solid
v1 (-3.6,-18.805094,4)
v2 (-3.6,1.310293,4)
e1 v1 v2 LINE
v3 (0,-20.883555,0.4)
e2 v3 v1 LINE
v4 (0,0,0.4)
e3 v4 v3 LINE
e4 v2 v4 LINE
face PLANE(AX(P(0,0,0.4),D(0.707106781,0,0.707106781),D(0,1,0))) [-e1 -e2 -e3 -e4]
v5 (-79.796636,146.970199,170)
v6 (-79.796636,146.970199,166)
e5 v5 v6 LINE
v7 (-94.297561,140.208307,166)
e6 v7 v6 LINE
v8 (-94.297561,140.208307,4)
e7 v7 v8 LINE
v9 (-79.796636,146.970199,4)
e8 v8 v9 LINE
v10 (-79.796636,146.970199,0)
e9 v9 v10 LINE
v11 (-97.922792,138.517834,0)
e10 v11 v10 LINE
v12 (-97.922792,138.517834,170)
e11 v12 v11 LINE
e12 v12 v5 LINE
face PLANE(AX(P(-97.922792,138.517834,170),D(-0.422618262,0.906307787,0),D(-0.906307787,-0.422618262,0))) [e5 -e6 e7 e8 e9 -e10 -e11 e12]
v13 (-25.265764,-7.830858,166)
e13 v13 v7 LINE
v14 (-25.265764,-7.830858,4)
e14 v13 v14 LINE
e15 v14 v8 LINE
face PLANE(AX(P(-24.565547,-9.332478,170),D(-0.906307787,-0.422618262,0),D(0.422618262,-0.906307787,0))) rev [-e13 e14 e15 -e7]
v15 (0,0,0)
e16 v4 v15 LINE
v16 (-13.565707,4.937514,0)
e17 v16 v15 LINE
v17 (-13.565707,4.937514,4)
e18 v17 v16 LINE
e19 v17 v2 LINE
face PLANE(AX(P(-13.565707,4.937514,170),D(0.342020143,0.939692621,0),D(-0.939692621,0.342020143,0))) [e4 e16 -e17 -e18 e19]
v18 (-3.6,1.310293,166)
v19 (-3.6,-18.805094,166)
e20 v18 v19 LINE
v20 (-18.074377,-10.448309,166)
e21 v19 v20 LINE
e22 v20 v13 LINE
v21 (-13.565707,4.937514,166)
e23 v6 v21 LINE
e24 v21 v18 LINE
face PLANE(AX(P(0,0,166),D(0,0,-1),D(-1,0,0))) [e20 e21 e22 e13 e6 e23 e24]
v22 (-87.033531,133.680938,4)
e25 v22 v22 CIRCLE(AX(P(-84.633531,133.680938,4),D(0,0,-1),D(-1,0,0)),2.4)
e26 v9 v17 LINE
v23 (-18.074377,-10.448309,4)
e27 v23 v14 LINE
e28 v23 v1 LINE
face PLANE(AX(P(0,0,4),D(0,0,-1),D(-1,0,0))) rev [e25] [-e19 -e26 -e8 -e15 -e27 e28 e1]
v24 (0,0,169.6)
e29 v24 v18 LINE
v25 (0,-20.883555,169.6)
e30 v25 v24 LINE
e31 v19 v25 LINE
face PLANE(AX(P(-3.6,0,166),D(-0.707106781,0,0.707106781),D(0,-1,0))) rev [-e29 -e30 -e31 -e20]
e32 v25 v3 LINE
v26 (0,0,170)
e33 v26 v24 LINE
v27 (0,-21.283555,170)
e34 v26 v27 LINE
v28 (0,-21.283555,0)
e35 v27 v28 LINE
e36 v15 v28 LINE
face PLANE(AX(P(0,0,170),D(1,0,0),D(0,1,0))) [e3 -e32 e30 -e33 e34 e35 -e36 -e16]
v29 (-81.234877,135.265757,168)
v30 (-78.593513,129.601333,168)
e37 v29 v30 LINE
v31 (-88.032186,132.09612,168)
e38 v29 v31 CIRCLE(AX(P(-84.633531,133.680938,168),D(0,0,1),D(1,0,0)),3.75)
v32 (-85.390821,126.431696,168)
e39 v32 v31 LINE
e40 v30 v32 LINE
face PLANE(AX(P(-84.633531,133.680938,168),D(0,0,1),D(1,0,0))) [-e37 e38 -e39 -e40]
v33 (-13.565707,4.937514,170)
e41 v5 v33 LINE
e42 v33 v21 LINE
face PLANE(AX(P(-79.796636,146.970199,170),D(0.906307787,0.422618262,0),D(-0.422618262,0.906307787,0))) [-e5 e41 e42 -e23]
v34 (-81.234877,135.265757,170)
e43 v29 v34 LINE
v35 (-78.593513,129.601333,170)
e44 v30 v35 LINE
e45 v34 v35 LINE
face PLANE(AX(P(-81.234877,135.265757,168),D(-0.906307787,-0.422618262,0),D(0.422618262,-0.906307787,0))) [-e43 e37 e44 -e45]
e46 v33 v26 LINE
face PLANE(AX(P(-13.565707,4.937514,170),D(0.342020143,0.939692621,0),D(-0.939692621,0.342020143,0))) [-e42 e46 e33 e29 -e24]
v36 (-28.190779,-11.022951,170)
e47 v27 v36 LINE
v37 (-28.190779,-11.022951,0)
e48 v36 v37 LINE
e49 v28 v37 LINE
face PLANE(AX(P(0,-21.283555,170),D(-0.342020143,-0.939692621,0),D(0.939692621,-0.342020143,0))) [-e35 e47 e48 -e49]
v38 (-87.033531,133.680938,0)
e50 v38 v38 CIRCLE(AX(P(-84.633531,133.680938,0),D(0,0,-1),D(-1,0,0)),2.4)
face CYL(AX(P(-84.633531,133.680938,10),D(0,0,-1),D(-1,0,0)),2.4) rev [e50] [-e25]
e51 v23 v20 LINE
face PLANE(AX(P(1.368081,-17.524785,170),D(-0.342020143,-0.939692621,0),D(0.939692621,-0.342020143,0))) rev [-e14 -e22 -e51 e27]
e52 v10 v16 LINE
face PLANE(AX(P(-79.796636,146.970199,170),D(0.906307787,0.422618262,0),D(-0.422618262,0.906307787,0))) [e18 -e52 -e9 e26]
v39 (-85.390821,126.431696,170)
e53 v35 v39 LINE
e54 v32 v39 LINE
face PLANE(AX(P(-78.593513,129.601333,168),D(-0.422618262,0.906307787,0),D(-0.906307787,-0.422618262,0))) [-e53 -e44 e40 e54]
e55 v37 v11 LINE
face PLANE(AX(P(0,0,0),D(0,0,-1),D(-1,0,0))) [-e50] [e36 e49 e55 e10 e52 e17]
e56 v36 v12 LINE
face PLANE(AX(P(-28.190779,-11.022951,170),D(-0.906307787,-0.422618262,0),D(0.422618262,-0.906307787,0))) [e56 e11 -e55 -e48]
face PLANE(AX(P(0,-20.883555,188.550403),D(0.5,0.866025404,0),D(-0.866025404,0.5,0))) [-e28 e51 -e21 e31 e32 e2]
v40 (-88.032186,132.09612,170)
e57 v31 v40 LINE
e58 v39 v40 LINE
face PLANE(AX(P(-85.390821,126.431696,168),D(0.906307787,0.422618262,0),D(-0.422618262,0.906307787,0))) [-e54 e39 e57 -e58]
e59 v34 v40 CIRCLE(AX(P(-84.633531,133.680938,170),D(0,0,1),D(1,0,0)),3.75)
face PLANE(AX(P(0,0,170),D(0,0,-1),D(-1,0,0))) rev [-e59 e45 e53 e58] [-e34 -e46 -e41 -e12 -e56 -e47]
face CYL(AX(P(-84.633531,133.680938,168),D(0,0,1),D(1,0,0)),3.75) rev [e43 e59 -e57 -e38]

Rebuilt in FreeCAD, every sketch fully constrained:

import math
import FreeCAD as App
import Part
import Sketcher
Q = App.Units.Quantity


def edges_at(feature, points):
    """Names of the edges that pass closest to the given points."""
    edges = feature.Shape.Edges
    near = lambda p: min(range(len(edges)), key=lambda i: edges[i].distToShape(Part.Vertex(*p))[0])
    return sorted({f"Edge{near(p) + 1}" for p in points})


def faces_at(feature, points):
    """Names of the faces that lie closest to the given points."""
    faces = feature.Shape.Faces
    near = lambda p: min(range(len(faces)), key=lambda i: faces[i].distToShape(Part.Vertex(*p))[0])
    return sorted({f"Face{near(p) + 1}" for p in points})


def add_polygon(sketch, points):
    """Adds a closed chain of lines whose ends are joined by coincident constraints."""
    first, n = sketch.GeometryCount, len(points)
    for a, b in zip(points, points[1:] + points[:1]):
        sketch.addGeometry(Part.LineSegment(App.Vector(*a, 0), App.Vector(*b, 0)), False)
    for i in range(n):
        sketch.addConstraint(Sketcher.Constraint("Coincident", first + i, 2, first + (i + 1) % n, 1))

doc = App.newDocument("Part")
body = doc.addObject("PartDesign::Body", "Body")

# Sketch on XY plane
sketch1 = doc.addObject("Sketcher::SketchObject", "Sketch")
body.addObject(sketch1)
sketch1.AttachmentSupport = (doc.XY_Plane, [""])
sketch1.MapMode = "FlatFace"
add_polygon(sketch1, [(0, -21), (0, 0), (-14, 5), (-80, 147), (-98, 139), (-28, -11)])  # lines 0-5
sketch1.addConstraint([
    Sketcher.Constraint("Vertical", 0),
    Sketcher.Constraint("Coincident", 0, 2, -1, 1),
    Sketcher.Constraint("Perpendicular", 2, 3),
    Sketcher.Constraint("Perpendicular", 3, 4),
    Sketcher.Constraint("Parallel", 1, 5),
    Sketcher.Constraint("Angle", 1, Q("160 deg")),
    Sketcher.Constraint("Angle", 2, Q("115 deg")),
    Sketcher.Constraint("Distance", 3, 20.0),
    Sketcher.Constraint("Distance", 4, 165.0),
    Sketcher.Constraint("Distance", 5, 30.0),
    Sketcher.Constraint("DistanceY", -1, 1, 2, 2, 146.970199),
])
pad1 = doc.addObject("PartDesign::Pad", "Pad")
body.addObject(pad1)
pad1.Profile = sketch1
pad1.Length = 170
doc.recompute()

thickness = doc.addObject("PartDesign::Thickness", "Thickness")
body.addObject(thickness)
thickness.Base = (pad1, faces_at(pad1, [
    (0, -10.642, 85),
    (-6.783, 2.469, 85),
    (-46.681, 75.954, 85),
    (-88.86, 142.744, 85),
]))
thickness.Value = 4
thickness.Reversed = True
thickness.Join = "Intersection"

# Sketch on XY plane
sketch2 = doc.addObject("Sketcher::SketchObject", "Sketch001")
body.addObject(sketch2)
sketch2.AttachmentSupport = (doc.XY_Plane, [""])
sketch2.MapMode = "FlatFace"
sketch2.AttachmentOffset = App.Placement(App.Vector(0, 0, 170), App.Rotation())
sketch2.addGeometry([
    Part.LineSegment(App.Vector(-78.6, 129.6, 0), App.Vector(-81.2, 135.3, 0)),
    Part.ArcOfCircle(Part.Circle(App.Vector(-84.6, 133.7, 0), App.Vector(0, 0, 1), 3.8), math.radians(25), math.radians(205)),
    Part.LineSegment(App.Vector(-88, 132.1, 0), App.Vector(-85.4, 126.4, 0)),
    Part.LineSegment(App.Vector(-85.4, 126.4, 0), App.Vector(-78.6, 129.6, 0)),
], False)
sketch2.addConstraint([
    Sketcher.Constraint("Tangent", 0, 2, 1, 1),
    Sketcher.Constraint("Tangent", 1, 2, 2, 1),
    Sketcher.Constraint("Coincident", 2, 2, 3, 1),
    Sketcher.Constraint("Coincident", 3, 2, 0, 1),
    Sketcher.Constraint("Parallel", 0, 2),
    Sketcher.Constraint("Perpendicular", 2, 3),
    Sketcher.Constraint("Angle", 0, Q("115 deg")),
    Sketcher.Constraint("Radius", 1, 3.75),
    Sketcher.Constraint("Distance", 0, 6.25),
    Sketcher.Constraint("DistanceX", 1, 3, -1, 1, 84.633531),
    Sketcher.Constraint("DistanceY", -1, 1, 1, 3, 133.680938),
])
pocket1 = doc.addObject("PartDesign::Pocket", "Pocket")
body.addObject(pocket1)
pocket1.Profile = sketch2
pocket1.Length = 2

# Sketch on XY plane
sketch3 = doc.addObject("Sketcher::SketchObject", "Sketch002")
body.addObject(sketch3)
sketch3.AttachmentSupport = (doc.XY_Plane, [""])
sketch3.MapMode = "FlatFace"
sketch3.AttachmentOffset = App.Placement(App.Vector(0, 0, 4), App.Rotation())
add_polygon(sketch3, [(-20, -10), (0, -21), (0, -10)])  # lines 0-2
sketch3.addConstraint([
    Sketcher.Constraint("Vertical", 1),
    Sketcher.Constraint("Horizontal", 2),
    Sketcher.Constraint("PointOnObject", 0, 2, -2),
    Sketcher.Constraint("Angle", 0, Q("-30 deg")),
    Sketcher.Constraint("DistanceY", 1, 1, 1, 2, 11.275202),
    Sketcher.Constraint("DistanceY", 0, 2, -1, 1, 20.883555),
])
pocket2 = doc.addObject("PartDesign::Pocket", "Pocket001")
body.addObject(pocket2)
pocket2.Profile = sketch3
pocket2.Length = 162
pocket2.Reversed = True
doc.recompute()

chamfer = doc.addObject("PartDesign::Chamfer", "Chamfer")
body.addObject(chamfer)
chamfer.Base = (pocket2, edges_at(pocket2, [(0, -10.442, 166), (0, -10.442, 4)]))
chamfer.Size = 3.6

# Sketch on XY plane
sketch4 = doc.addObject("Sketcher::SketchObject", "Sketch003")
body.addObject(sketch4)
sketch4.AttachmentSupport = (doc.XY_Plane, [""])
sketch4.MapMode = "FlatFace"
sketch4.addGeometry(Part.Circle(App.Vector(-84.6, 133.7, 0), App.Vector(0, 0, 1), 2.4), False)
sketch4.addConstraint([
    Sketcher.Constraint("Diameter", 0, 4.8),
    Sketcher.Constraint("DistanceX", 0, 3, -1, 1, 84.633531),
    Sketcher.Constraint("DistanceY", -1, 1, 0, 3, 133.680938),
])
pocket3 = doc.addObject("PartDesign::Pocket", "Pocket002")
body.addObject(pocket3)
pocket3.Profile = sketch4
pocket3.Length = 10
pocket3.Reversed = True

doc.recompute()
